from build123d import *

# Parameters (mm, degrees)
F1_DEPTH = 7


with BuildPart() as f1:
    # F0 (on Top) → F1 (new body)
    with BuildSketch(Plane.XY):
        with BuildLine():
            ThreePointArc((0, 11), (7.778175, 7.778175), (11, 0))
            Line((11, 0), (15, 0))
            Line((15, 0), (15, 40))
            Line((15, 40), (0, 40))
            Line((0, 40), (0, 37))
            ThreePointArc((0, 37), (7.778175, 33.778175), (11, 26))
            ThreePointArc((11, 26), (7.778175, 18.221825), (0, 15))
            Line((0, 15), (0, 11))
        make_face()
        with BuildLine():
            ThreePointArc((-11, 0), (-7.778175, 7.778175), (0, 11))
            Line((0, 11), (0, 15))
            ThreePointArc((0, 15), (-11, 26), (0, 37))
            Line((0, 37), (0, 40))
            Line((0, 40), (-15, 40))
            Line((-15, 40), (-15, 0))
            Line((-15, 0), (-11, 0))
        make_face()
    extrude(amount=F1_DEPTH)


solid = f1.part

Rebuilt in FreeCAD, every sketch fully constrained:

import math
import FreeCAD as App
import Part
import Sketcher

V = App.Vector

doc = App.newDocument("Part")
body = doc.addObject("PartDesign::Body", "Body")

# Sketch on XY plane
sketch1 = body.newObject("Sketcher::SketchObject", "Sketch")
sketch1.AttachmentSupport = (doc.getObject("XY_Plane"), [""])
sketch1.MapMode = "FlatFace"
sketch1.addGeometry(Part.ArcOfCircle(Part.Circle(V(0.000001, 0.000001, 0), V(0, 0, 1), 10.999999), math.radians(-0.000007), math.radians(90.000007)), False)
sketch1.addGeometry(Part.LineSegment(V(11, 0, 0), V(15, 0, 0)), False)
sketch1.addGeometry(Part.LineSegment(V(15, 0, 0), V(15, 40, 0)), False)
sketch1.addGeometry(Part.LineSegment(V(15, 40, 0), V(-15, 40, 0)), False)
sketch1.addGeometry(Part.LineSegment(V(-15, 40, 0), V(-15, 0, 0)), False)
sketch1.addGeometry(Part.LineSegment(V(-15, 0, 0), V(-11, 0, 0)), False)
sketch1.addGeometry(Part.ArcOfCircle(Part.Circle(V(-0.000001, 0.000001, 0), V(0, 0, 1), 10.999999), math.radians(89.999993), math.radians(180.000007)), False)
sketch1.addGeometry(Part.ArcOfCircle(Part.Circle(V(0.000001, 26.000001, 0), V(0, 0, 1), 10.999999), math.radians(-0.000007), math.radians(90.000007)), False)
sketch1.addGeometry(Part.ArcOfCircle(Part.Circle(V(0.000001, 25.999999, 0), V(0, 0, 1), 10.999999), math.radians(-90.000007), math.radians(0.000007)), False)
sketch1.addGeometry(Part.ArcOfCircle(Part.Circle(V(0, 26, 0), V(0, 0, 1), 11), math.radians(90), math.radians(270)), False)
sketch1.addConstraint(Sketcher.Constraint("Coincident", 0, 1, 1, 1))
sketch1.addConstraint(Sketcher.Constraint("Coincident", 1, 2, 2, 1))
sketch1.addConstraint(Sketcher.Constraint("Coincident", 2, 2, 3, 1))
sketch1.addConstraint(Sketcher.Constraint("Coincident", 3, 2, 4, 1))
sketch1.addConstraint(Sketcher.Constraint("Coincident", 4, 2, 5, 1))
sketch1.addConstraint(Sketcher.Constraint("Coincident", 5, 2, 6, 2))
sketch1.addConstraint(Sketcher.Constraint("Tangent", 6, 1, 0, 2))
sketch1.addConstraint(Sketcher.Constraint("Tangent", 7, 1, 8, 2))
sketch1.addConstraint(Sketcher.Constraint("Tangent", 8, 1, 9, 2))
sketch1.addConstraint(Sketcher.Constraint("Tangent", 9, 1, 7, 2))
sketch1.addConstraint(Sketcher.Constraint("Horizontal", 1))
sketch1.addConstraint(Sketcher.Constraint("Vertical", 2))
sketch1.addConstraint(Sketcher.Constraint("Horizontal", 3))
sketch1.addConstraint(Sketcher.Constraint("Vertical", 4))
sketch1.addConstraint(Sketcher.Constraint("Horizontal", 5))
sketch1.addConstraint(Sketcher.Constraint("Coincident", 0, 3, -1, 1))
sketch1.addConstraint(Sketcher.Constraint("Equal", 0, 6))
sketch1.addConstraint(Sketcher.Constraint("Equal", 6, 7))
sketch1.addConstraint(Sketcher.Constraint("Symmetric", 1, 2, 4, 2, -1, 1))
sketch1.addConstraint(Sketcher.Constraint("PointOnObject", 7, 3, -2))
sketch1.addConstraint(Sketcher.Constraint("PointOnObject", 0, 1, -1))
sketch1.addConstraint(Sketcher.Constraint("PointOnObject", 6, 1, -2))
sketch1.addConstraint(Sketcher.Constraint("PointOnObject", 8, 1, -2))
sketch1.addConstraint(Sketcher.Constraint("PointOnObject", 9, 1, -2))
sketch1.addConstraint(Sketcher.Constraint("Horizontal", 9, 3, 7, 1))
sketch1.addConstraint(Sketcher.Constraint("Radius", 0, 10.999999))
sketch1.addConstraint(Sketcher.Constraint("DistanceX", 1, 1, 1, 2, 4.0))
sketch1.addConstraint(Sketcher.Constraint("DistanceY", 2, 1, 2, 2, 40.0))
sketch1.addConstraint(Sketcher.Constraint("DistanceY", -1, 1, 7, 3, 26.000001))
pad1 = body.newObject("PartDesign::Pad", "Pad")
pad1.Profile = sketch1
pad1.Length = 7

doc.recompute()
